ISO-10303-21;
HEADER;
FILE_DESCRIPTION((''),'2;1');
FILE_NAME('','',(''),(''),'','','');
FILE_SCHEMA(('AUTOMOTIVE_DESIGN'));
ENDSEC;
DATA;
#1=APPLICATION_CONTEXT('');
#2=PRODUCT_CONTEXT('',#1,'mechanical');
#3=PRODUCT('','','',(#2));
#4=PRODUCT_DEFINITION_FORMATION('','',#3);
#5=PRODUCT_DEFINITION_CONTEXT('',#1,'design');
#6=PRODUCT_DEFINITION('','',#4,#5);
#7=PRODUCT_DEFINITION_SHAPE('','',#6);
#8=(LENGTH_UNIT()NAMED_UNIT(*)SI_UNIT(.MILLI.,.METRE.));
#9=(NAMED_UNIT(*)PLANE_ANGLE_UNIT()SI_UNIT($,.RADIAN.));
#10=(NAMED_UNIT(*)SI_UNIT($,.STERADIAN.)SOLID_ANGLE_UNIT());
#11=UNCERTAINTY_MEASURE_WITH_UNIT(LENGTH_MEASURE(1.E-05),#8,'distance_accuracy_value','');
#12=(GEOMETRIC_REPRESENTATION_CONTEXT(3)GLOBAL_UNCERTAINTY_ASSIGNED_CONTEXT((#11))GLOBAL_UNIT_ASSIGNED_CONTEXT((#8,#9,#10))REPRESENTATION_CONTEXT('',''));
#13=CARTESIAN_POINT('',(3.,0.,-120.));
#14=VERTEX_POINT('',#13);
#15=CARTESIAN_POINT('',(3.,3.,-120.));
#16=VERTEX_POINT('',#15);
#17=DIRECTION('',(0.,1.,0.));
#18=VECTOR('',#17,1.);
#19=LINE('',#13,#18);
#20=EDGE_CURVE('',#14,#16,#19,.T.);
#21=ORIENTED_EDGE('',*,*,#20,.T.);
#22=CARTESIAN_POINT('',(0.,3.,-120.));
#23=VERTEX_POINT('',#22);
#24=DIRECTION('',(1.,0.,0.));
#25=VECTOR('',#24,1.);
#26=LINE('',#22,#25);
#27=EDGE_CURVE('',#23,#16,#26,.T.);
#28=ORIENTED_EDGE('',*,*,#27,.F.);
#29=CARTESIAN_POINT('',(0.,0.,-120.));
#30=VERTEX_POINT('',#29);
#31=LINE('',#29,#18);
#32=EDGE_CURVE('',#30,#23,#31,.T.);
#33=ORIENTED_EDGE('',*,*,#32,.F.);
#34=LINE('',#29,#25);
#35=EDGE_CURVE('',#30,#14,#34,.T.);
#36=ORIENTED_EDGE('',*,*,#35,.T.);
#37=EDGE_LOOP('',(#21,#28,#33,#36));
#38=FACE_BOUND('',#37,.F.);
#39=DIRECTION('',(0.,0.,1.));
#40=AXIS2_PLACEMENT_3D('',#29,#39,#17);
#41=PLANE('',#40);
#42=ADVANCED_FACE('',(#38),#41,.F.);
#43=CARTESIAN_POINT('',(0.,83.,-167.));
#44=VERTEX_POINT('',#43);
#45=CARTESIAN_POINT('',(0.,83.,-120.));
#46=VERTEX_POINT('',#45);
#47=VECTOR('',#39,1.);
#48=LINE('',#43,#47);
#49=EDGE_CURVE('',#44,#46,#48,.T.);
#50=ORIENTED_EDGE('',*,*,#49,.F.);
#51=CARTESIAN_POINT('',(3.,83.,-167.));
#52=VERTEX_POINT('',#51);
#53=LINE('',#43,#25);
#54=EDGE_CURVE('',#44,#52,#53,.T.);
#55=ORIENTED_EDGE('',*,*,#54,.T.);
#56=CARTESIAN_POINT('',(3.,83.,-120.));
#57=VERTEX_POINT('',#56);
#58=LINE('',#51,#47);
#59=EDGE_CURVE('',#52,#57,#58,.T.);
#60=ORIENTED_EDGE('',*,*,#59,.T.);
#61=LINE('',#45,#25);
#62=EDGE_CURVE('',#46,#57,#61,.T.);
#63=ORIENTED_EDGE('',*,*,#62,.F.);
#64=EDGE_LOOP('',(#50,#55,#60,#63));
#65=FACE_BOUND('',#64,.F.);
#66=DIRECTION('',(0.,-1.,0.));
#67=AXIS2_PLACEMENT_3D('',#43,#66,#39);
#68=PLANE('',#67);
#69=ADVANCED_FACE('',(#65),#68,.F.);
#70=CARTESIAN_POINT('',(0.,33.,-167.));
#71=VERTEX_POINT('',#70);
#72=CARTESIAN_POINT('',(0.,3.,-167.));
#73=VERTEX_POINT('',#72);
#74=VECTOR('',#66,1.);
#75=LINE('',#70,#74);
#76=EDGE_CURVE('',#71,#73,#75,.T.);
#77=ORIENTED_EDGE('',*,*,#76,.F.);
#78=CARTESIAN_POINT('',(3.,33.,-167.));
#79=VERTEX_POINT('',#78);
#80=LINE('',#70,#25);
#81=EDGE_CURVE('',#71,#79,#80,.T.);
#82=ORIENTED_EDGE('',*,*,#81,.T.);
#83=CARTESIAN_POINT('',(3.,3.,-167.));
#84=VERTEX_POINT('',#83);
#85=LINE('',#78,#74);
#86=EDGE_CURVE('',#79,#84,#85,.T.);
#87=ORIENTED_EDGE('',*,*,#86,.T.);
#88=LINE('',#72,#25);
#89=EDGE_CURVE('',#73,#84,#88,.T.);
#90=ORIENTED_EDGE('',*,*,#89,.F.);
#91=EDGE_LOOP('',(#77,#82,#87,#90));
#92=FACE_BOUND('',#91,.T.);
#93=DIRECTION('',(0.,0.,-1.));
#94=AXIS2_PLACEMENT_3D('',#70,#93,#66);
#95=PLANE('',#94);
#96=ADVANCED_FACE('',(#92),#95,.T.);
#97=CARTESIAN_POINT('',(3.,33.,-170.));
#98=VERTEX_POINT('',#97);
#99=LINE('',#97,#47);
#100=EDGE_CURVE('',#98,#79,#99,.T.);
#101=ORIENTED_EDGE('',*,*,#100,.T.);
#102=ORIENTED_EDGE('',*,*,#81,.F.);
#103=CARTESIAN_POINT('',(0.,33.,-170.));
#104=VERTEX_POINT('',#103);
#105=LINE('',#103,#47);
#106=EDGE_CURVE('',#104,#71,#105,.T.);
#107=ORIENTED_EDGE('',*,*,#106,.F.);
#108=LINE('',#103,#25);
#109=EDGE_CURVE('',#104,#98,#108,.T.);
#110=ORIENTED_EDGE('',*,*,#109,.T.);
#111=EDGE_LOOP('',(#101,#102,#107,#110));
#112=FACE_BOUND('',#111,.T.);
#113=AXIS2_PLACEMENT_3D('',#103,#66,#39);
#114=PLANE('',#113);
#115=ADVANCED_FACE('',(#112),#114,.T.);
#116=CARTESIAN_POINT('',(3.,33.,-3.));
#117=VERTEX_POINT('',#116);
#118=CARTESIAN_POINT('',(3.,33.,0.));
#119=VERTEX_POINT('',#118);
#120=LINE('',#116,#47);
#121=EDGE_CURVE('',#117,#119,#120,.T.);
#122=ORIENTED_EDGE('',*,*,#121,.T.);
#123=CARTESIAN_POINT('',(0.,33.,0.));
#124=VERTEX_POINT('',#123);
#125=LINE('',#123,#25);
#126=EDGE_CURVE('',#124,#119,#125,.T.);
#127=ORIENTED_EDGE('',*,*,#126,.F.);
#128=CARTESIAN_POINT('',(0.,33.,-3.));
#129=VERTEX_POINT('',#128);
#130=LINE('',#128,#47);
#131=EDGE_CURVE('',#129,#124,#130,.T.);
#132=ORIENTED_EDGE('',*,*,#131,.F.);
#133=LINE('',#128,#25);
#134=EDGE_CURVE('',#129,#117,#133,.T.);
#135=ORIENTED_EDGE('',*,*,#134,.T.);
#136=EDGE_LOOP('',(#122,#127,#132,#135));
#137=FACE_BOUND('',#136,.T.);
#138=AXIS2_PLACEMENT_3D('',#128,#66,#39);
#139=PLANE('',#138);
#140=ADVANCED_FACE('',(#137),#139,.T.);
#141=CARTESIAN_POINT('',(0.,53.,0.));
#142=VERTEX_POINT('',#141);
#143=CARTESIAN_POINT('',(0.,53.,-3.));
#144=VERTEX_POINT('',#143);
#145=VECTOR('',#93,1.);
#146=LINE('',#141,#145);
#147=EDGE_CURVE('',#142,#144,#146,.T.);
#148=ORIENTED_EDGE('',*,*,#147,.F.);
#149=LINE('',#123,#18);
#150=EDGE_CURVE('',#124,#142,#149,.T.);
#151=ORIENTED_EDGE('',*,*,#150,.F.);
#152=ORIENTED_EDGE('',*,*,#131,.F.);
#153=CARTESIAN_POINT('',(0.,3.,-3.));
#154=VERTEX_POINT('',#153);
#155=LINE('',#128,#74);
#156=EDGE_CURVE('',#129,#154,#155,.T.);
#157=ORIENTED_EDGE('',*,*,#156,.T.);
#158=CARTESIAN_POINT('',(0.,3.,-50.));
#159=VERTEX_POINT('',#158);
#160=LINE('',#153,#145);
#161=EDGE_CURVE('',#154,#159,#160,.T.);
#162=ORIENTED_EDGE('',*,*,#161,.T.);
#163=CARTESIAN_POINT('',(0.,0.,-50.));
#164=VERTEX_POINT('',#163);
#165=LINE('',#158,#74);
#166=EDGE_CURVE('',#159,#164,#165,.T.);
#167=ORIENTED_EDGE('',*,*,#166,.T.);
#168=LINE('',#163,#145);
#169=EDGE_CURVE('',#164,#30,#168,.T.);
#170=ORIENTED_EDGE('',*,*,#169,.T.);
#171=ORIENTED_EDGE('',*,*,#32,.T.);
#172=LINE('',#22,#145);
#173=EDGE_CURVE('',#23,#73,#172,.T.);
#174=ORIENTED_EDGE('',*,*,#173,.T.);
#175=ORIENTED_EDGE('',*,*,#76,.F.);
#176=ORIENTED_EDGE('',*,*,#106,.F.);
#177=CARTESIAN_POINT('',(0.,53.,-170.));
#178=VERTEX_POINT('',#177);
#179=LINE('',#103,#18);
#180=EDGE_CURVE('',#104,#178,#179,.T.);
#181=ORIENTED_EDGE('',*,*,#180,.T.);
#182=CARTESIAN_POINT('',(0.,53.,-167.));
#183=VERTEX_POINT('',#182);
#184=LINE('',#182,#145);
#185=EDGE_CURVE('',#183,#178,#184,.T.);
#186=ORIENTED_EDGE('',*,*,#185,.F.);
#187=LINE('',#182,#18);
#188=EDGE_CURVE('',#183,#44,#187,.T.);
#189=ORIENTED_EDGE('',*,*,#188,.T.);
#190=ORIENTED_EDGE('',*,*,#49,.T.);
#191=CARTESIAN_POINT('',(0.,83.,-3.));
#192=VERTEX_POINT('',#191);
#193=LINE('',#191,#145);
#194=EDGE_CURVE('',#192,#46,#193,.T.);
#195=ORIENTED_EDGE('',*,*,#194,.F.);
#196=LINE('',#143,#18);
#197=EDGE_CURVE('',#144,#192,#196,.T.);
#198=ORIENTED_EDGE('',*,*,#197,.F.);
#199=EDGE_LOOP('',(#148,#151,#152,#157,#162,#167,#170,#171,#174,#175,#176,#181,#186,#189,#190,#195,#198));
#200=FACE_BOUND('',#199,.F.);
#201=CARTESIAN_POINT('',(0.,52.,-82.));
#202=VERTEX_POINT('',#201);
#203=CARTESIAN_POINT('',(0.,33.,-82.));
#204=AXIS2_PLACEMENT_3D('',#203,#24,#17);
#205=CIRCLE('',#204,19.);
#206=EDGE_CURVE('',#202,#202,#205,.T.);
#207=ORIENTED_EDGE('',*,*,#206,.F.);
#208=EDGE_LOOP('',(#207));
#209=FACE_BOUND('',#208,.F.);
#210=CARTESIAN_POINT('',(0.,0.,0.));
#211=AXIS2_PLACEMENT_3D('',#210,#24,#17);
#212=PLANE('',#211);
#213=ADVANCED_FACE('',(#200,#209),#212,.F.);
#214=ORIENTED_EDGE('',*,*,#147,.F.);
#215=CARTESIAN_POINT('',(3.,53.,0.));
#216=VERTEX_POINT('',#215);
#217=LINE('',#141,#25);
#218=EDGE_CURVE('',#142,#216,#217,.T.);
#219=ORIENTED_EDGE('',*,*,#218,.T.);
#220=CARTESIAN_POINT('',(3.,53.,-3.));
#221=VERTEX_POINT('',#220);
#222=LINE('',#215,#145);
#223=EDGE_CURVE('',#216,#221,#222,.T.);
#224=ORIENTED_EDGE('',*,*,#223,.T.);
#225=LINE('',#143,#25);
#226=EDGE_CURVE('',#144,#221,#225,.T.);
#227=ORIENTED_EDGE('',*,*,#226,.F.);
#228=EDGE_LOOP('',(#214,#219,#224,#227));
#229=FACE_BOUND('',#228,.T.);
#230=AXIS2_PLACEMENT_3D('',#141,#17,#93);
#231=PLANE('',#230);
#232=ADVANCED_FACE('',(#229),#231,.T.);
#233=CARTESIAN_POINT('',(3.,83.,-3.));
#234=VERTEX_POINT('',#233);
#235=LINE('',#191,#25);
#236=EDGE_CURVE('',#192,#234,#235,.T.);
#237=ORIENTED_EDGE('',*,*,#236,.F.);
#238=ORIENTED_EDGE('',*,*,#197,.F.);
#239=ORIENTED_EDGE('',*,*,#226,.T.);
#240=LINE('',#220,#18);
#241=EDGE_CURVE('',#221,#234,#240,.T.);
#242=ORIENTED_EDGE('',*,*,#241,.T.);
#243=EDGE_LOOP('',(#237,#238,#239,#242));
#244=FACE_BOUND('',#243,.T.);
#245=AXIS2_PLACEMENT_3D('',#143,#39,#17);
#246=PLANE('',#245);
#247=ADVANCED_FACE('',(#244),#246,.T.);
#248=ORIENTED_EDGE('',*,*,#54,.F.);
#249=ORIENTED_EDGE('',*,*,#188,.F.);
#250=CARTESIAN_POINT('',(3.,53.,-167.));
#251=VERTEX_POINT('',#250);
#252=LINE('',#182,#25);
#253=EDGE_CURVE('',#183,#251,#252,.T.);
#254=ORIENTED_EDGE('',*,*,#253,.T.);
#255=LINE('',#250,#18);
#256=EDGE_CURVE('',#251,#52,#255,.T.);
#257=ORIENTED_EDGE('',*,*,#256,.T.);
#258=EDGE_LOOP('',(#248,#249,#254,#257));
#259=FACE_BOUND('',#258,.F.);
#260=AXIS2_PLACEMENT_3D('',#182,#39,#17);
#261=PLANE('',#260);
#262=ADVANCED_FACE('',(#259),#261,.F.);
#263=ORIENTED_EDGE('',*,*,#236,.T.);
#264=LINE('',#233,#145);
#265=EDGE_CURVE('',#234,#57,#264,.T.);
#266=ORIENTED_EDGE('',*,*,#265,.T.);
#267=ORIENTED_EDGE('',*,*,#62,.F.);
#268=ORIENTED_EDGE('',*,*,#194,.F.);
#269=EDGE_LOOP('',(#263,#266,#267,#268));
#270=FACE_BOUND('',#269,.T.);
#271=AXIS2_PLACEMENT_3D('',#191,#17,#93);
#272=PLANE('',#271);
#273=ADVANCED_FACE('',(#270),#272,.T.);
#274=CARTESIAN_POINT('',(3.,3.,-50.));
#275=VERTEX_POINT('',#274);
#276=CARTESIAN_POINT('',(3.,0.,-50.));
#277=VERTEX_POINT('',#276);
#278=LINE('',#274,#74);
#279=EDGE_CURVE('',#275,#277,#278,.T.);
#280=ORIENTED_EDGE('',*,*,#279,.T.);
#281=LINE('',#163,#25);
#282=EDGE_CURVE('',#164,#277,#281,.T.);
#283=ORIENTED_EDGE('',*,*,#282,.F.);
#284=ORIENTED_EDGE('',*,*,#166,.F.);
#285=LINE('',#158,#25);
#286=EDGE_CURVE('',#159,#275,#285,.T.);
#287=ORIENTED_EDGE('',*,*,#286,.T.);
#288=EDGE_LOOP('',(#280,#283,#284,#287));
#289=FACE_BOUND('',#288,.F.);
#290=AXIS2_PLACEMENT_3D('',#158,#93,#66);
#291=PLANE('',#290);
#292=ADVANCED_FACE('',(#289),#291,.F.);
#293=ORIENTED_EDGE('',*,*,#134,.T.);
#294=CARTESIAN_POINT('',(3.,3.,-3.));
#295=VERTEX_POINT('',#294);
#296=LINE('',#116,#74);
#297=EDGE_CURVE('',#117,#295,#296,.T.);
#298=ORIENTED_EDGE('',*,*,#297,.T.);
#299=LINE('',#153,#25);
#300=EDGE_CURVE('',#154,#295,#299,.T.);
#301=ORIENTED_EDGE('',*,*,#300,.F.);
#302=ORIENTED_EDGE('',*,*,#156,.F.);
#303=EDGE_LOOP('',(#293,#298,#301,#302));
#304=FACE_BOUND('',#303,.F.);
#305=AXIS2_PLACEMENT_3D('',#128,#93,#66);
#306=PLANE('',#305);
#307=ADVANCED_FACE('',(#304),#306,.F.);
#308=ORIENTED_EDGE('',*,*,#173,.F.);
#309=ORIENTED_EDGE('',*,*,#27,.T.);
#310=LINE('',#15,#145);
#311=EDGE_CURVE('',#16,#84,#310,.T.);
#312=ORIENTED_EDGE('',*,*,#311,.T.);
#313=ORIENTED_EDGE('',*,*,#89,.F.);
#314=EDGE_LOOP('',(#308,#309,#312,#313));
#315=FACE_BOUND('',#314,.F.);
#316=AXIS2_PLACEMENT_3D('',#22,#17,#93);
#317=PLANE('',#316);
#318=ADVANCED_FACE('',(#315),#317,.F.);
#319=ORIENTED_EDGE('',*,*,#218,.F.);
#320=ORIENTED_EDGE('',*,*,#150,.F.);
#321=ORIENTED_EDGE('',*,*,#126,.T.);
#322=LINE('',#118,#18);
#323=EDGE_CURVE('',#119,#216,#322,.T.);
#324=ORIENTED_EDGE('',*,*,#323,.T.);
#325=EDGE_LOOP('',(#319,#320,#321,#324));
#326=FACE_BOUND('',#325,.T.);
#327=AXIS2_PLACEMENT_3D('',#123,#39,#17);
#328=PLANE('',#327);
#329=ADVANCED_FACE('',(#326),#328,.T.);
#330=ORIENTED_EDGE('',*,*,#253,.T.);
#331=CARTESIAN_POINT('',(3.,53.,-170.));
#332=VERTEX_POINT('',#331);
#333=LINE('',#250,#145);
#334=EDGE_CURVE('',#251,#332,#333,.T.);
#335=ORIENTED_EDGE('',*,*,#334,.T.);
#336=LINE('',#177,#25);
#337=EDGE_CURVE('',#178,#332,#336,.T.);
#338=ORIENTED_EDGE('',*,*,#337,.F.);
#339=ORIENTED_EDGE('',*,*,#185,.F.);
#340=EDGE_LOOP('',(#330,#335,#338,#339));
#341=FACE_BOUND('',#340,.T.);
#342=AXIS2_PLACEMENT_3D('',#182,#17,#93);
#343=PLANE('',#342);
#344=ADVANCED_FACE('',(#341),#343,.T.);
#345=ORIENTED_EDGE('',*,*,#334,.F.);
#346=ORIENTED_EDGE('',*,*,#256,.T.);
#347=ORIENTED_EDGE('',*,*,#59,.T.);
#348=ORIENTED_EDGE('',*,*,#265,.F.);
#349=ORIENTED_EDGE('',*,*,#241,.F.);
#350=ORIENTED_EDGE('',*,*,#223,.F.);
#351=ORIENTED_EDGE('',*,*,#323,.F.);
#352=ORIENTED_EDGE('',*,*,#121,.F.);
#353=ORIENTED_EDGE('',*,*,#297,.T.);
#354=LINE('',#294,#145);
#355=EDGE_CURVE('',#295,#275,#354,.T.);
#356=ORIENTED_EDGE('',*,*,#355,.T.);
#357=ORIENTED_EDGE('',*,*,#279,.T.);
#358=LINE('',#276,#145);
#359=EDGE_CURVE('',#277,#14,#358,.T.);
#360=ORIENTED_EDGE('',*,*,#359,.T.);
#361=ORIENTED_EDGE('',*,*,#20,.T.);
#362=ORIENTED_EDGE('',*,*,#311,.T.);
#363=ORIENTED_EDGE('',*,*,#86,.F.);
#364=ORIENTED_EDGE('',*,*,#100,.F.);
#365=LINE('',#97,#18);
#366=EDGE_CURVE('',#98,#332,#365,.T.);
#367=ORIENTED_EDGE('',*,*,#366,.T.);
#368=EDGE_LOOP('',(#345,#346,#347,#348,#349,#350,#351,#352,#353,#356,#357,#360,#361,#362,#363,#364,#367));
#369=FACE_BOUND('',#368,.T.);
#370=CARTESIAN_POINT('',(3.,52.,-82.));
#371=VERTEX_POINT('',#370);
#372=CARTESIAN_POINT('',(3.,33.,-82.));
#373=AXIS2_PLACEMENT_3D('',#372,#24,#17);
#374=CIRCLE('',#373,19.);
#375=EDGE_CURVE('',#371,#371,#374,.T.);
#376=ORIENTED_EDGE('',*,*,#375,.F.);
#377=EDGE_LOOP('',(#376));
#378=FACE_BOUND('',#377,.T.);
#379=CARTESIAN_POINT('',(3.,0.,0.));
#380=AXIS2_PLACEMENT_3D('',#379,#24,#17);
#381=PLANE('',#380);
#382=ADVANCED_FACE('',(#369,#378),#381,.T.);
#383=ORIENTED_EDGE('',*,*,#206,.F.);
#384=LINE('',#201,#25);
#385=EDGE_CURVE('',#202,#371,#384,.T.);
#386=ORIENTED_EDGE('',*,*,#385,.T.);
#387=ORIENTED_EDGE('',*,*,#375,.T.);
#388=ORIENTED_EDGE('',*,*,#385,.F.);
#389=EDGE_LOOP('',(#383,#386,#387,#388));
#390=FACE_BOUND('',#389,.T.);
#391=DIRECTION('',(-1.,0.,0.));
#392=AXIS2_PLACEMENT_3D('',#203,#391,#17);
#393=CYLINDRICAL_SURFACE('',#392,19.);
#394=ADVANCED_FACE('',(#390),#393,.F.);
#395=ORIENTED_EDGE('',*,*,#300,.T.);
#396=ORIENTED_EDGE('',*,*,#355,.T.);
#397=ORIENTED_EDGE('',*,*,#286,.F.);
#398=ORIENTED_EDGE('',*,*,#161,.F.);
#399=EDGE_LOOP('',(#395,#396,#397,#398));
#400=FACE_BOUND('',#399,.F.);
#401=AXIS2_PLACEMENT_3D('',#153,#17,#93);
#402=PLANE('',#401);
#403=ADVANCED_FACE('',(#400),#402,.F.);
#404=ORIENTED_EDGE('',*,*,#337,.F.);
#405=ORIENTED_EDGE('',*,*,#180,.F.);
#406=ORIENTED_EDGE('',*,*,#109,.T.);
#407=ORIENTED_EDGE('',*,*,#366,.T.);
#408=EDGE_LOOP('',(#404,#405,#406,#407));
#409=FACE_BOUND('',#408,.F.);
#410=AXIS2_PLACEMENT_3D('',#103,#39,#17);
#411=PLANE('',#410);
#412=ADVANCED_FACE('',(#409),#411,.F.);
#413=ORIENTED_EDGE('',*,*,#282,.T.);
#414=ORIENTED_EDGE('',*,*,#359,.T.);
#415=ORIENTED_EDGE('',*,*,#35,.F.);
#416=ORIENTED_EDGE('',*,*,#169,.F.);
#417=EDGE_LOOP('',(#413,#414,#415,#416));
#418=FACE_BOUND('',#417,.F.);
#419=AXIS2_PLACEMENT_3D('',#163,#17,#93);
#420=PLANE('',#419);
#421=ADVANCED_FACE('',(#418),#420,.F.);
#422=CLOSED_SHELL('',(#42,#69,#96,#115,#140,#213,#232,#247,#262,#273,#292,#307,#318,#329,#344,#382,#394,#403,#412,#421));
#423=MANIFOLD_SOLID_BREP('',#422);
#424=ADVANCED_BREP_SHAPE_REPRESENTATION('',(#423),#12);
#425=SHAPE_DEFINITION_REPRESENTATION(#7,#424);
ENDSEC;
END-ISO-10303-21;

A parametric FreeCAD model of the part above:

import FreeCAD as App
import Part
import Sketcher

V = App.Vector
Q = App.Units.Quantity


def add_polygon(sketch, points):
    """Adds a closed chain of lines whose ends are joined by coincident constraints."""
    first, n = sketch.GeometryCount, len(points)
    for a, b in zip(points, points[1:] + points[:1]):
        sketch.addGeometry(Part.LineSegment(App.Vector(*a, 0), App.Vector(*b, 0)), False)
    for i in range(n):
        sketch.addConstraint(Sketcher.Constraint("Coincident", first + i, 2, first + (i + 1) % n, 1))

doc = App.newDocument("Part")
body = doc.addObject("PartDesign::Body", "Body")

sketch1 = body.newObject("Sketcher::SketchObject", "Sketch")
sketch1.AttachmentSupport = (doc.getObject("YZ_Plane"), [""])
sketch1.MapMode = "FlatFace"
add_polygon(sketch1, [(33, -3), (3, -3), (3, -50), (0, -50), (0, -120), (3, -120), (3, -167), (33, -167), (33, -170), (53, -170), (53, -167), (83, -167), (83, -3), (53, -3), (53, 0), (33, 0)])
sketch1.addGeometry(Part.Circle(V(33, -82, 0), V(0, 0, 1), 19), False)
sketch1.addConstraint([
    Sketcher.Constraint("Horizontal", 0),
    Sketcher.Constraint("Vertical", 1),
    Sketcher.Constraint("Horizontal", 2),
    Sketcher.Constraint("Vertical", 3),
    Sketcher.Constraint("Horizontal", 4),
    Sketcher.Constraint("Vertical", 5),
    Sketcher.Constraint("Horizontal", 6),
    Sketcher.Constraint("Vertical", 7),
    Sketcher.Constraint("Horizontal", 8),
    Sketcher.Constraint("Vertical", 9),
    Sketcher.Constraint("Horizontal", 10),
    Sketcher.Constraint("Vertical", 11),
    Sketcher.Constraint("Horizontal", 12),
    Sketcher.Constraint("Vertical", 13),
    Sketcher.Constraint("Horizontal", 14),
    Sketcher.Constraint("Vertical", 15),
    Sketcher.Constraint("PointOnObject", 2, 2, -2),
    Sketcher.Constraint("PointOnObject", 13, 2, -1),
    Sketcher.Constraint("Horizontal", 6, 2, 9, 2),
    Sketcher.Constraint("Horizontal", 0, 2, 11, 2),
    Sketcher.Constraint("Vertical", 1, 2, 4, 2),
    Sketcher.Constraint("Vertical", 16, 3, 6, 2),
    Sketcher.Constraint("Vertical", 9, 2, 12, 2),
    Sketcher.Constraint("Vertical", 7, 2, 14, 2),
    Sketcher.Constraint("Equal", 6, 10),
    Sketcher.Constraint("Equal", 1, 5),
    Sketcher.Constraint("Equal", 4, 7),
    Sketcher.Constraint("Equal", 9, 13),
    Sketcher.Constraint("Diameter", 16, Q("38 mm")),
    Sketcher.Constraint("DistanceX", 0, 2, 0, 1, Q("30 mm")),
    Sketcher.Constraint("DistanceX", 2, 2, 2, 1, Q("3 mm")),
    Sketcher.Constraint("DistanceX", 8, 1, 8, 2, Q("20 mm")),
    Sketcher.Constraint("DistanceY", 1, 2, 1, 1, Q("47 mm")),
    Sketcher.Constraint("DistanceY", 3, 2, 3, 1, Q("70 mm")),
    Sketcher.Constraint("DistanceY", 16, 3, -1, 1, Q("82 mm")),
])
pad1 = body.newObject("PartDesign::Pad", "Pad")
pad1.Profile = sketch1
pad1.Length = 3

doc.recompute()
